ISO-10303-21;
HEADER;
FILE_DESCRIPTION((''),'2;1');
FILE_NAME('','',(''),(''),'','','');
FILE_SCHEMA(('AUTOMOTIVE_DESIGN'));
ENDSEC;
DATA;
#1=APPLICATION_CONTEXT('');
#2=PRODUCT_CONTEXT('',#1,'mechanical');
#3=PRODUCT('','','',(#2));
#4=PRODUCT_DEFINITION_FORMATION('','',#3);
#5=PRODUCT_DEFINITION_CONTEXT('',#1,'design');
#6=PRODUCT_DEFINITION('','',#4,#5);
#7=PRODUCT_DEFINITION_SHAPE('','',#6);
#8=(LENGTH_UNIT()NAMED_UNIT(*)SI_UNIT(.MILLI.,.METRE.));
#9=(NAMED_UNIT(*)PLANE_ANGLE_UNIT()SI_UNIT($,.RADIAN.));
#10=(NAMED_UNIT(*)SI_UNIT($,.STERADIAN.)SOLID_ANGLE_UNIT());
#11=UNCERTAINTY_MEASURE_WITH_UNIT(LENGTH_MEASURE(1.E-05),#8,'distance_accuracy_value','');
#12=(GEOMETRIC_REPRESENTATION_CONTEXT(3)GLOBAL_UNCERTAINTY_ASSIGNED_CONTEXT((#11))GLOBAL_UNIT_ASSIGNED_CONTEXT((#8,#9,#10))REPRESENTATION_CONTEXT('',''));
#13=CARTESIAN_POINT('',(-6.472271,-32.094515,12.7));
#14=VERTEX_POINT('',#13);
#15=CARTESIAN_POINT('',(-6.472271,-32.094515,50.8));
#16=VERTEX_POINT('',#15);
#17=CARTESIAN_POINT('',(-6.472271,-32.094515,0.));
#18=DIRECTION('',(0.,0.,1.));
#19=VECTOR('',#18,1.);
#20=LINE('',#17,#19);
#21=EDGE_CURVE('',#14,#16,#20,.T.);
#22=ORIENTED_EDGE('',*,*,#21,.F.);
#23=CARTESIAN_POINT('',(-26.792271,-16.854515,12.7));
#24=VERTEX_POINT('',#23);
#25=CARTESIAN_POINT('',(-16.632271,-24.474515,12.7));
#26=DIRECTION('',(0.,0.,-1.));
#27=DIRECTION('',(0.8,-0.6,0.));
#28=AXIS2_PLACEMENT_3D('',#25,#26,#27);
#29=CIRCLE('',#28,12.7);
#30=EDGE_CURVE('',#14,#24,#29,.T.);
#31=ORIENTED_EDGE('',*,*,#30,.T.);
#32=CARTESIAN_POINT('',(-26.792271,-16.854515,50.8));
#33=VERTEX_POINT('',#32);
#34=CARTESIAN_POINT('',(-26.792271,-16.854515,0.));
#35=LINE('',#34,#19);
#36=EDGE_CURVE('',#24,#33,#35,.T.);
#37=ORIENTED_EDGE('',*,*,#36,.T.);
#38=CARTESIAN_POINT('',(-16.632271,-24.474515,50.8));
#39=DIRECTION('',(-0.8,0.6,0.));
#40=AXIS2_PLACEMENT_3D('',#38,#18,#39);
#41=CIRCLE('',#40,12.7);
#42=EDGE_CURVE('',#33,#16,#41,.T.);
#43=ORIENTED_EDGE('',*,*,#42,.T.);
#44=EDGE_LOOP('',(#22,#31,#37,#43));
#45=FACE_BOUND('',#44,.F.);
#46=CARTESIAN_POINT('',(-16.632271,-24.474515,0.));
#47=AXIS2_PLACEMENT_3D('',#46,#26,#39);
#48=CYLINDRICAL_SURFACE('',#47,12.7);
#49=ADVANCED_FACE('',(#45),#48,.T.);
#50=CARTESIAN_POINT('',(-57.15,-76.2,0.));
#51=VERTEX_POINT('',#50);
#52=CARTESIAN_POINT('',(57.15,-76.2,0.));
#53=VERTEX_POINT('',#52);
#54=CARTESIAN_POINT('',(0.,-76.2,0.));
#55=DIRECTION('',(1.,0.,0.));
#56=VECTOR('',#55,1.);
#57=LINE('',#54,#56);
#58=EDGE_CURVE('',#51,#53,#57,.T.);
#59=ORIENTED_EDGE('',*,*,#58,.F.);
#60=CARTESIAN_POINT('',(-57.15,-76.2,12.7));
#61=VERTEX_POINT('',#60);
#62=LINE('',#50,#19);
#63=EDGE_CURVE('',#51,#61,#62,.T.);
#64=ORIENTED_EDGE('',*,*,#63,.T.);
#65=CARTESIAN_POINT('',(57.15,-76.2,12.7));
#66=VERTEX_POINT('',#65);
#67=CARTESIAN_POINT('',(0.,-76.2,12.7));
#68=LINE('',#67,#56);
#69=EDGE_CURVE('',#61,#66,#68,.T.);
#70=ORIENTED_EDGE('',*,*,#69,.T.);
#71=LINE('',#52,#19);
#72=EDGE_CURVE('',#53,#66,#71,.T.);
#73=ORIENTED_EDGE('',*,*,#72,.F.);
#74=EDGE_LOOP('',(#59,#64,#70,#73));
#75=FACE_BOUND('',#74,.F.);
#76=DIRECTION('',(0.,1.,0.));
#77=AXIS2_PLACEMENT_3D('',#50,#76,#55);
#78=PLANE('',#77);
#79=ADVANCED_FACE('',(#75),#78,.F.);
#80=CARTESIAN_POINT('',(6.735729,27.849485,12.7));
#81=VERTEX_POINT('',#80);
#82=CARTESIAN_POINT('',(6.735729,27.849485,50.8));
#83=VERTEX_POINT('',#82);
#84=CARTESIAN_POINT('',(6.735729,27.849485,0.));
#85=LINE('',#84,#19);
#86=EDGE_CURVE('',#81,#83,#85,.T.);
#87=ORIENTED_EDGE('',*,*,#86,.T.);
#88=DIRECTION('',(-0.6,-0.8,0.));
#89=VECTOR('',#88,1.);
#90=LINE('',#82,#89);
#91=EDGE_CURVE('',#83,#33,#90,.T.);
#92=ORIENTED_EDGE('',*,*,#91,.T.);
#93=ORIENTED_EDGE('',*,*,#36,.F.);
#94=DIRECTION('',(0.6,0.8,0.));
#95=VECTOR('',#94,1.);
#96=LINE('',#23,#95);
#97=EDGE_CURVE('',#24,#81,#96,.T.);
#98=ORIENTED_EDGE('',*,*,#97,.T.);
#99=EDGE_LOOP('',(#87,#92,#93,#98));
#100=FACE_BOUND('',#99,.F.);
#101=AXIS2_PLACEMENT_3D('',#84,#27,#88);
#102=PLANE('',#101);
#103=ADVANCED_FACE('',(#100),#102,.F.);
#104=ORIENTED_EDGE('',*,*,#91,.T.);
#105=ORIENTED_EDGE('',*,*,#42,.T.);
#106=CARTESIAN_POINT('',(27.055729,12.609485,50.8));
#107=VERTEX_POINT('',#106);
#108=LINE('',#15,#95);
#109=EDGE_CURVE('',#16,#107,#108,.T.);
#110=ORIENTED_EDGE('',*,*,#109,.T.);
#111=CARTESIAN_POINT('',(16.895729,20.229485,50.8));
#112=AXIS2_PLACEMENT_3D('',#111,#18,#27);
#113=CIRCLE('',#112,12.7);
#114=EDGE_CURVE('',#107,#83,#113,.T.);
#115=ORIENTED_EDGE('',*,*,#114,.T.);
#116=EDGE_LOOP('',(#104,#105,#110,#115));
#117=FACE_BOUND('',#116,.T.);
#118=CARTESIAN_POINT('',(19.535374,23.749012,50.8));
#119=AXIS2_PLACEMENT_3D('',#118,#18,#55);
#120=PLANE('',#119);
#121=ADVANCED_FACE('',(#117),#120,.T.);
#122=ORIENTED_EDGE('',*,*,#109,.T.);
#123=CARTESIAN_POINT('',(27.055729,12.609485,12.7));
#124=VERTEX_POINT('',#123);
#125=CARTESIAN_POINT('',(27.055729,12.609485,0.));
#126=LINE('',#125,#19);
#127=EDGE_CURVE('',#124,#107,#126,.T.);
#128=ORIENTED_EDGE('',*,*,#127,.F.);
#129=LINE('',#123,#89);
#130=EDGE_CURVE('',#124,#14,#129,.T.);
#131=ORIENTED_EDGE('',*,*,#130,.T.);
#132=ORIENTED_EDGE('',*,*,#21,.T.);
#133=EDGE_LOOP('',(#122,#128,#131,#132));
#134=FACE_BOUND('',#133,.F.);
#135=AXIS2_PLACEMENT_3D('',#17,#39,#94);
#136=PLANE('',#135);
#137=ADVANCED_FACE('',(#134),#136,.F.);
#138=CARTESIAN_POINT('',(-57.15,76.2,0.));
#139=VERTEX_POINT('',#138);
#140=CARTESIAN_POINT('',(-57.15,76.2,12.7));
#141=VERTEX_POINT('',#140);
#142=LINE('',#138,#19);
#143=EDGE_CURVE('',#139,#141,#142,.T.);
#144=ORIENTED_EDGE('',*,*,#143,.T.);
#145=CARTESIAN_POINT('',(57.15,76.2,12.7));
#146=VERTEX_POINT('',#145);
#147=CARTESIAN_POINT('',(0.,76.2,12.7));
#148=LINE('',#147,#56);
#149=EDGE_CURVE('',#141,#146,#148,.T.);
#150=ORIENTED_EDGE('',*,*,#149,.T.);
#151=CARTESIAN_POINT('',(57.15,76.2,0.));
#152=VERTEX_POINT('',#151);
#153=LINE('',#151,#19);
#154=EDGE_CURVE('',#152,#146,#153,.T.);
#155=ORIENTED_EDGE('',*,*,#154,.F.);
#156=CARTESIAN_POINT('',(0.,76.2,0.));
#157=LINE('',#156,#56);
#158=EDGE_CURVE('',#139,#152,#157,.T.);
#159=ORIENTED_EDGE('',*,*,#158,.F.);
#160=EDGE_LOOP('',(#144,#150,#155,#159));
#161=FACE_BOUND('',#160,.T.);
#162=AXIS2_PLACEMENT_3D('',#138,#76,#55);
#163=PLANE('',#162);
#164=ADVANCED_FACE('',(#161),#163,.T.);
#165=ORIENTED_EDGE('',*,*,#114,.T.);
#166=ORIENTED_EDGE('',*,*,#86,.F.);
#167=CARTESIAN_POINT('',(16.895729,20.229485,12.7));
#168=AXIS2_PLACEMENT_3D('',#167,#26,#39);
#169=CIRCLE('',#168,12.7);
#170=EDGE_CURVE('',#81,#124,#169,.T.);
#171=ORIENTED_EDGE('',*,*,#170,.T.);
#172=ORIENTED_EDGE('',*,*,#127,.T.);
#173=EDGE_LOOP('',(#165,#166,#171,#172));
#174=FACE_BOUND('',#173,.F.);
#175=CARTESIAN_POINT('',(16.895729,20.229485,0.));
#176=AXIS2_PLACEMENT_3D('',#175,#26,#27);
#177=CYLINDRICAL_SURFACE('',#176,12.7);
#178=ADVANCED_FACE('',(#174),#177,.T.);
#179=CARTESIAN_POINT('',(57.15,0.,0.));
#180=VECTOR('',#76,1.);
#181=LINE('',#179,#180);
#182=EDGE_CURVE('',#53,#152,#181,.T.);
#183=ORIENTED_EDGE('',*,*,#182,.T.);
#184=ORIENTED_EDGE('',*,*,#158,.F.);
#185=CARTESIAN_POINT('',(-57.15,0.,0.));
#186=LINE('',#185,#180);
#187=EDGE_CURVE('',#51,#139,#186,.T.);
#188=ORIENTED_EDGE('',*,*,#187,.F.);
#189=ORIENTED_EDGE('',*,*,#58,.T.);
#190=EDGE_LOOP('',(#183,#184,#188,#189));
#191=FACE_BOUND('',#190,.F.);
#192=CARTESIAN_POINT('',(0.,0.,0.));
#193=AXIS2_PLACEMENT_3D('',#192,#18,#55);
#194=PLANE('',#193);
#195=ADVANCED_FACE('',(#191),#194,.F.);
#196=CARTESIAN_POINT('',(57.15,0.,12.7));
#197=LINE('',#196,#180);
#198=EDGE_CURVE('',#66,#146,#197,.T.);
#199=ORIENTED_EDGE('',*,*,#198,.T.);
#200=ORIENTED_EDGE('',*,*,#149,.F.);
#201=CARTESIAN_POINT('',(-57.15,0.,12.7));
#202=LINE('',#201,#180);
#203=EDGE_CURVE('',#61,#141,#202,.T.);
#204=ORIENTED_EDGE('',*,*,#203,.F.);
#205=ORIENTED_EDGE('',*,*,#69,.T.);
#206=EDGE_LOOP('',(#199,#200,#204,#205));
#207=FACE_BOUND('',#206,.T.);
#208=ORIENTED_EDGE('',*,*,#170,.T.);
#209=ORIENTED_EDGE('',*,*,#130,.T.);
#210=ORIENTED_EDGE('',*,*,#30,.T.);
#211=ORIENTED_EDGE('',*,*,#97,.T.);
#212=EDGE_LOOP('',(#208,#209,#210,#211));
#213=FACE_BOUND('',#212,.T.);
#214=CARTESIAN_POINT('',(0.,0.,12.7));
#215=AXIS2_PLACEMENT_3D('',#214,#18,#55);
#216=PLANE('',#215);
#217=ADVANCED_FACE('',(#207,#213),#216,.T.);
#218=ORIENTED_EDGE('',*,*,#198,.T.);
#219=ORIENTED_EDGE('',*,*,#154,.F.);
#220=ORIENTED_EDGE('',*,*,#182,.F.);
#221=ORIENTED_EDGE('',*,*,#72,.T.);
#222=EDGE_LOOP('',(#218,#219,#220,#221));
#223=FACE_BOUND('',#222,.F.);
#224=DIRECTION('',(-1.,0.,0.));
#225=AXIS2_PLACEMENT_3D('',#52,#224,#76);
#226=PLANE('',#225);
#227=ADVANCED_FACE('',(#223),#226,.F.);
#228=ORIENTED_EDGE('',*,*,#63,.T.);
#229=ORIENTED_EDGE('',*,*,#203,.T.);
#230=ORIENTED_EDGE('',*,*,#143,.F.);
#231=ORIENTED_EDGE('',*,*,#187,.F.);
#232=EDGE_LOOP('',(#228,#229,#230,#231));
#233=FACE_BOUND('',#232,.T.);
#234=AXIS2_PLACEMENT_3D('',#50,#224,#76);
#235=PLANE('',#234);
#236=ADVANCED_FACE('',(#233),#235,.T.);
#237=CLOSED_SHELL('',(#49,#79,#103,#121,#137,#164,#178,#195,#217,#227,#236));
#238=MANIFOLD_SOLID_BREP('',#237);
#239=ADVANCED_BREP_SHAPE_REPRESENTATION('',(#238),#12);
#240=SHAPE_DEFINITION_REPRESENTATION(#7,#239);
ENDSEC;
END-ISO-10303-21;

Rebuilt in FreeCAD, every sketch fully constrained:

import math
import FreeCAD as App
import Part
import Sketcher

V = App.Vector
Q = App.Units.Quantity


def add_polygon(sketch, points):
    """Adds a closed chain of lines whose ends are joined by coincident constraints."""
    first, n = sketch.GeometryCount, len(points)
    for a, b in zip(points, points[1:] + points[:1]):
        sketch.addGeometry(Part.LineSegment(App.Vector(*a, 0), App.Vector(*b, 0)), False)
    for i in range(n):
        sketch.addConstraint(Sketcher.Constraint("Coincident", first + i, 2, first + (i + 1) % n, 1))

doc = App.newDocument("Part")
body = doc.addObject("PartDesign::Body", "Body")

# Sketch on XY plane
sketch1 = body.newObject("Sketcher::SketchObject", "Sketch")
sketch1.AttachmentSupport = (doc.getObject("XY_Plane"), [""])
sketch1.MapMode = "FlatFace"
add_polygon(sketch1, [(-57.15, 76.2), (-57.15, -76.2), (57.15, -76.2), (57.15, 76.2)])  # lines 0-3
sketch1.addGeometry(Part.ArcOfCircle(Part.Circle(V(16.895729, 20.229485, 0), V(0, 0, 1), 12.7), math.radians(-36.869898), math.radians(143.130102)), False)  # 4
sketch1.addGeometry(Part.LineSegment(V(27.055729, 12.609485, 0), V(-6.472271, -32.094515, 0)), False)  # 5
sketch1.addGeometry(Part.ArcOfCircle(Part.Circle(V(-16.632271, -24.474515, 0), V(0, 0, 1), 12.7), math.radians(143.130102), math.radians(323.130102)), False)  # 6
sketch1.addGeometry(Part.LineSegment(V(-26.792271, -16.854515, 0), V(6.735729, 27.849485, 0)), False)  # 7
sketch1.addConstraint(Sketcher.Constraint("Tangent", 4, 1, 5, 1))
sketch1.addConstraint(Sketcher.Constraint("Tangent", 5, 2, 6, 2))
sketch1.addConstraint(Sketcher.Constraint("Tangent", 6, 1, 7, 1))
sketch1.addConstraint(Sketcher.Constraint("Tangent", 7, 2, 4, 2))
sketch1.addConstraint(Sketcher.Constraint("Vertical", 0))
sketch1.addConstraint(Sketcher.Constraint("Horizontal", 1))
sketch1.addConstraint(Sketcher.Constraint("Vertical", 2))
sketch1.addConstraint(Sketcher.Constraint("Horizontal", 3))
sketch1.addConstraint(Sketcher.Constraint("Equal", 4, 6))
sketch1.addConstraint(Sketcher.Constraint("Symmetric", 0, 2, 2, 2, -1, 1))
sketch1.addConstraint(Sketcher.Constraint("Radius", 4, Q("0.5 in")))
sketch1.addConstraint(Sketcher.Constraint("DistanceY", 0, 2, 0, 1, Q("6 in")))
sketch1.addConstraint(Sketcher.Constraint("DistanceX", 1, 1, 1, 2, Q("4.5 in")))
sketch1.addConstraint(Sketcher.Constraint("Distance", 5, Q("2.2 in")))
sketch1.addConstraint(Sketcher.Constraint("DistanceX", 4, 3, 4, 1, Q("0.4 in")))
sketch1.addConstraint(Sketcher.Constraint("DistanceX", -1, 1, 4, 3, 16.895729))
sketch1.addConstraint(Sketcher.Constraint("DistanceY", -1, 1, 4, 3, 20.229485))
pad1 = body.newObject("PartDesign::Pad", "Pad")
pad1.Profile = sketch1
pad1.Length = Q("0.5 in")

# Sketch on XY plane
sketch2 = body.newObject("Sketcher::SketchObject", "Sketch001")
sketch2.AttachmentSupport = (doc.getObject("XY_Plane"), [""])
sketch2.MapMode = "FlatFace"
sketch2.addGeometry(Part.ArcOfCircle(Part.Circle(V(16.895729, 20.229485, 0), V(0, 0, 1), 12.7), math.radians(-36.869898), math.radians(143.130102)), False)
sketch2.addGeometry(Part.LineSegment(V(6.735729, 27.849485, 0), V(-26.792271, -16.854515, 0)), False)
sketch2.addGeometry(Part.ArcOfCircle(Part.Circle(V(-16.632271, -24.474515, 0), V(0, 0, 1), 12.7), math.radians(143.130102), math.radians(323.130102)), False)
sketch2.addGeometry(Part.LineSegment(V(-6.472271, -32.094515, 0), V(27.055729, 12.609485, 0)), False)
sketch2.addConstraint(Sketcher.Constraint("Tangent", 0, 2, 1, 1))
sketch2.addConstraint(Sketcher.Constraint("Tangent", 1, 2, 2, 1))
sketch2.addConstraint(Sketcher.Constraint("Tangent", 2, 2, 3, 1))
sketch2.addConstraint(Sketcher.Constraint("Tangent", 3, 2, 0, 1))
sketch2.addConstraint(Sketcher.Constraint("Equal", 0, 2))
sketch2.addConstraint(Sketcher.Constraint("Radius", 0, Q("0.5 in")))
sketch2.addConstraint(Sketcher.Constraint("Distance", 1, Q("2.2 in")))
sketch2.addConstraint(Sketcher.Constraint("DistanceX", 0, 2, 0, 3, Q("0.4 in")))
sketch2.addConstraint(Sketcher.Constraint("DistanceX", -1, 1, 0, 3, 16.895729))
sketch2.addConstraint(Sketcher.Constraint("DistanceY", -1, 1, 0, 3, 20.229485))
pad2 = body.newObject("PartDesign::Pad", "Pad001")
pad2.Profile = sketch2
pad2.Length = Q("2 in")

doc.recompute()
